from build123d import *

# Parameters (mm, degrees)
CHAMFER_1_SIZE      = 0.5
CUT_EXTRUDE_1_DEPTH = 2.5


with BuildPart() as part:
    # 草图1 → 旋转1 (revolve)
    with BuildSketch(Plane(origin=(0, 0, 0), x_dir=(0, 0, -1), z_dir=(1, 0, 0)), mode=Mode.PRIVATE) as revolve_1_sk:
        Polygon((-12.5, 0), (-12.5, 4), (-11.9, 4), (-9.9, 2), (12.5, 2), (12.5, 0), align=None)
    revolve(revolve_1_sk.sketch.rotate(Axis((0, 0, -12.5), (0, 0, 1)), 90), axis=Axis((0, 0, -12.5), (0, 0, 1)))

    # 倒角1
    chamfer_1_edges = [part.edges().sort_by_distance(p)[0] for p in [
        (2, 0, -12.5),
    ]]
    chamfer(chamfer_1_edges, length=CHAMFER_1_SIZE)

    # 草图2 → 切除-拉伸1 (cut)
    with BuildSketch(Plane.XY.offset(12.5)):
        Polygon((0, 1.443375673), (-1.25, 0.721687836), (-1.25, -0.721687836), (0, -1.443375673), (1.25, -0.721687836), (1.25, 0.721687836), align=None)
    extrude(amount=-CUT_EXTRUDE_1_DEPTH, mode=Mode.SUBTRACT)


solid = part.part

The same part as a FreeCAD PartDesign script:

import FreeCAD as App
import Part
import Sketcher
Q = App.Units.Quantity


def edges_at(feature, points):
    """Names of the edges that pass closest to the given points."""
    edges = feature.Shape.Edges
    near = lambda p: min(range(len(edges)), key=lambda i: edges[i].distToShape(Part.Vertex(*p))[0])
    return sorted({f"Edge{near(p) + 1}" for p in points})

doc = App.newDocument("Part")
body = doc.addObject("PartDesign::Body", "Body")

# Sketch on YZ plane
sketch1 = body.newObject("Sketcher::SketchObject", "Sketch")
sketch1.AttachmentSupport = (doc.getObject("YZ_Plane"), [""])
sketch1.MapMode = "FlatFace"
sketch1.addGeometry([
    Part.LineSegment(App.Vector(4, 12.5, 0), App.Vector(0, 12.5, 0)),  # 0
    Part.LineSegment(App.Vector(0, 12.5, 0), App.Vector(0, -12.5, 0)),  # 1
    Part.LineSegment(App.Vector(0, -12.5, 0), App.Vector(2, -12.5, 0)),  # 2
    Part.LineSegment(App.Vector(2, -12.5, 0), App.Vector(2, 9.9, 0)),  # 3
    Part.LineSegment(App.Vector(2, 9.9, 0), App.Vector(4, 11.9, 0)),  # 4
    Part.LineSegment(App.Vector(4, 11.9, 0), App.Vector(4, 12.5, 0)),  # 5
], False)
sketch1.addConstraint([
    Sketcher.Constraint("Coincident", 0, 2, 1, 1),
    Sketcher.Constraint("Coincident", 1, 2, 2, 1),
    Sketcher.Constraint("Coincident", 2, 2, 3, 1),
    Sketcher.Constraint("Coincident", 3, 2, 4, 1),
    Sketcher.Constraint("Coincident", 4, 2, 5, 1),
    Sketcher.Constraint("Coincident", 5, 2, 0, 1),
    Sketcher.Constraint("Horizontal", 0),
    Sketcher.Constraint("Vertical", 1),
    Sketcher.Constraint("Horizontal", 2),
    Sketcher.Constraint("Vertical", 3),
    Sketcher.Constraint("Vertical", 5),
    Sketcher.Constraint("Symmetric", 0, 2, 1, 2, -1, 1),
    Sketcher.Constraint("DistanceX", 0, 2, 0, 1, Q("4 mm")),
    Sketcher.Constraint("DistanceX", 2, 1, 2, 2, Q("2 mm")),
    Sketcher.Constraint("DistanceY", 1, 2, 1, 1, Q("25 mm")),
    Sketcher.Constraint("Angle", 4, Q("45 deg")),
    Sketcher.Constraint("DistanceY", 3, 1, 3, 2, Q("22.4 mm")),
])
revolution = body.newObject("PartDesign::Revolution", "Revolution")
revolution.Profile = sketch1
revolution.ReferenceAxis = (sketch1, ["V_Axis"])
revolution.Angle = 360
doc.recompute()

chamfer = body.newObject("PartDesign::Chamfer", "Chamfer")
chamfer.Base = (revolution, edges_at(revolution, [(2, 0, -12.5)]))
chamfer.Size = 0.5

# Sketch on XY plane
sketch2 = body.newObject("Sketcher::SketchObject", "Sketch001")
sketch2.AttachmentSupport = (doc.getObject("XY_Plane"), [""])
sketch2.MapMode = "FlatFace"
sketch2.AttachmentOffset = App.Placement(App.Vector(0, 0, 12.5), App.Rotation())
sketch2.addGeometry([
    Part.LineSegment(App.Vector(0, 1.4, 0), App.Vector(-1.2, 0.7, 0)),  # 0
    Part.LineSegment(App.Vector(-1.2, 0.7, 0), App.Vector(-1.2, -0.7, 0)),  # 1
    Part.LineSegment(App.Vector(-1.2, -0.7, 0), App.Vector(0, -1.4, 0)),  # 2
    Part.LineSegment(App.Vector(0, -1.4, 0), App.Vector(1.2, -0.7, 0)),  # 3
    Part.LineSegment(App.Vector(1.2, -0.7, 0), App.Vector(1.2, 0.7, 0)),  # 4
    Part.LineSegment(App.Vector(1.2, 0.7, 0), App.Vector(0, 1.4, 0)),  # 5
], False)
sketch2.addConstraint([
    Sketcher.Constraint("Coincident", 0, 2, 1, 1),
    Sketcher.Constraint("Coincident", 1, 2, 2, 1),
    Sketcher.Constraint("Coincident", 2, 2, 3, 1),
    Sketcher.Constraint("Coincident", 3, 2, 4, 1),
    Sketcher.Constraint("Coincident", 4, 2, 5, 1),
    Sketcher.Constraint("Coincident", 5, 2, 0, 1),
    Sketcher.Constraint("Vertical", 1),
    Sketcher.Constraint("Vertical", 4),
    Sketcher.Constraint("Symmetric", 0, 2, 3, 2, -1, 1),
    Sketcher.Constraint("Symmetric", 2, 2, 5, 2, -1, 1),
    Sketcher.Constraint("PointOnObject", 2, 2, -2),
    Sketcher.Constraint("Parallel", 2, 5),
    Sketcher.Constraint("Horizontal", 1, 2, 3, 2),
    Sketcher.Constraint("Angle", 0, Q("-150 deg")),
    Sketcher.Constraint("DistanceX", 1, 2, 3, 2, Q("2.5 mm")),
    Sketcher.Constraint("DistanceY", 1, 2, 1, 1, Q("1.443376 mm")),
])
pocket1 = body.newObject("PartDesign::Pocket", "Pocket")
pocket1.Profile = sketch2
pocket1.Length = 2.5

doc.recompute()
